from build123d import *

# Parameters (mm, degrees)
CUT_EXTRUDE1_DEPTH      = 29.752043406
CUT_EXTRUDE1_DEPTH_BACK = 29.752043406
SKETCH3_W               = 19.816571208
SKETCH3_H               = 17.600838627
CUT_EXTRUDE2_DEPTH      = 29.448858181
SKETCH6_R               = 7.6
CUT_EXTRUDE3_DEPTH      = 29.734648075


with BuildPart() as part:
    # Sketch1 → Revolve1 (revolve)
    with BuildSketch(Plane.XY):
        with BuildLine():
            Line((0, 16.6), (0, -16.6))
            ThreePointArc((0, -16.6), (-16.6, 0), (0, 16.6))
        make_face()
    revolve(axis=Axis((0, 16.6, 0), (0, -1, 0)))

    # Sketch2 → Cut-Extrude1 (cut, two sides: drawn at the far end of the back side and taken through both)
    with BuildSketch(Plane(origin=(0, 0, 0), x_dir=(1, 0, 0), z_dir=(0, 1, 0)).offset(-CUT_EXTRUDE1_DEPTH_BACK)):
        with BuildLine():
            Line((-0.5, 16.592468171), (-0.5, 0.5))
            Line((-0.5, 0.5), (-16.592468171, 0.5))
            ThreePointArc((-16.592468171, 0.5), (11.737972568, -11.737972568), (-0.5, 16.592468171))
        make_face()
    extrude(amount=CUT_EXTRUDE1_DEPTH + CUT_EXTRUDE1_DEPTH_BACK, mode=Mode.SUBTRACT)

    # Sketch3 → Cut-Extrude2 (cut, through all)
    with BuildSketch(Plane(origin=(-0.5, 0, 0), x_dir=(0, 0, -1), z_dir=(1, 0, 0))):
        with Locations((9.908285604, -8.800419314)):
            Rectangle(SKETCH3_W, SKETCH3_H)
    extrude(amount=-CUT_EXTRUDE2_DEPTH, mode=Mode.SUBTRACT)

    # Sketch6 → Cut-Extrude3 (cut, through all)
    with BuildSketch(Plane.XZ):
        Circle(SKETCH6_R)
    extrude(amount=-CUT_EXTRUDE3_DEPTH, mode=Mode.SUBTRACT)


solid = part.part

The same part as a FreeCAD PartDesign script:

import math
import FreeCAD as App
import Part
import Sketcher

V = App.Vector
Q = App.Units.Quantity


def add_polygon(sketch, points):
    """Adds a closed chain of lines whose ends are joined by coincident constraints."""
    first, n = sketch.GeometryCount, len(points)
    for a, b in zip(points, points[1:] + points[:1]):
        sketch.addGeometry(Part.LineSegment(App.Vector(*a, 0), App.Vector(*b, 0)), False)
    for i in range(n):
        sketch.addConstraint(Sketcher.Constraint("Coincident", first + i, 2, first + (i + 1) % n, 1))

doc = App.newDocument("Part")
body = doc.addObject("PartDesign::Body", "Body")

sketch1 = body.newObject("Sketcher::SketchObject", "Sketch")
sketch1.AttachmentSupport = (doc.getObject("XY_Plane"), [""])
sketch1.MapMode = "FlatFace"
sketch1.addGeometry(Part.LineSegment(V(0, -17, 0), V(0, 17, 0)), False)
sketch1.addGeometry(Part.ArcOfCircle(Part.Circle(V(0, 0, 0), V(0, 0, 1), 17), math.radians(90), math.radians(270)), False)
sketch1.addConstraint(Sketcher.Constraint("Coincident", 0, 1, 1, 2))
sketch1.addConstraint(Sketcher.Constraint("Coincident", 1, 1, 0, 2))
sketch1.addConstraint(Sketcher.Constraint("Vertical", 0))
sketch1.addConstraint(Sketcher.Constraint("Coincident", 1, 3, -1, 1))
sketch1.addConstraint(Sketcher.Constraint("PointOnObject", 0, 1, -2))
sketch1.addConstraint(Sketcher.Constraint("Radius", 1, Q("16.6 mm")))
revolution = body.newObject("PartDesign::Revolution", "Revolution")
revolution.Profile = sketch1
revolution.ReferenceAxis = (sketch1, ["V_Axis"])
revolution.Angle = 360

sketch2 = body.newObject("Sketcher::SketchObject", "Sketch001")
sketch2.AttachmentSupport = (doc.getObject("XZ_Plane"), [""])
sketch2.MapMode = "FlatFace"
sketch2.addGeometry(Part.LineSegment(V(0, -17, 0), V(0, 0, 0)), False)
sketch2.addGeometry(Part.LineSegment(V(0, 0, 0), V(-17, 0, 0)), False)
sketch2.addGeometry(Part.ArcOfCircle(Part.Circle(V(0, 0, 0), V(0, 0, 1), 17), math.radians(-92), math.radians(182)), False)
sketch2.addConstraint(Sketcher.Constraint("Coincident", 0, 2, 1, 1))
sketch2.addConstraint(Sketcher.Constraint("Coincident", 1, 2, 2, 2))
sketch2.addConstraint(Sketcher.Constraint("Coincident", 2, 1, 0, 1))
sketch2.addConstraint(Sketcher.Constraint("Vertical", 0))
sketch2.addConstraint(Sketcher.Constraint("Horizontal", 1))
sketch2.addConstraint(Sketcher.Constraint("Coincident", 2, 3, -1, 1))
sketch2.addConstraint(Sketcher.Constraint("Equal", 1, 0))
sketch2.addConstraint(Sketcher.Constraint("Radius", 2, Q("16.6 mm")))
sketch2.addConstraint(Sketcher.Constraint("DistanceX", 0, 2, -1, 1, Q("0.5 mm")))
pocket1 = body.newObject("PartDesign::Pocket", "Pocket")
pocket1.Profile = sketch2
pocket1.Type = "ThroughAll"
pocket1.Midplane = True

sketch3 = body.newObject("Sketcher::SketchObject", "Sketch002")
sketch3.AttachmentSupport = (doc.getObject("YZ_Plane"), [""])
sketch3.MapMode = "FlatFace"
sketch3.AttachmentOffset = App.Placement(V(0, 0, -0.5), App.Rotation())
add_polygon(sketch3, [(0, 0), (-18, 0), (-18, -20), (0, -20)])
sketch3.addConstraint(Sketcher.Constraint("Horizontal", 0))
sketch3.addConstraint(Sketcher.Constraint("Vertical", 1))
sketch3.addConstraint(Sketcher.Constraint("Horizontal", 2))
sketch3.addConstraint(Sketcher.Constraint("Vertical", 3))
sketch3.addConstraint(Sketcher.Constraint("Coincident", 3, 2, -1, 1))
sketch3.addConstraint(Sketcher.Constraint("DistanceX", 0, 2, 0, 1, Q("17.600839 mm")))
sketch3.addConstraint(Sketcher.Constraint("DistanceY", 1, 2, 1, 1, Q("19.816571 mm")))
pocket2 = body.newObject("PartDesign::Pocket", "Pocket001")
pocket2.Profile = sketch3
pocket2.Type = "ThroughAll"

sketch4 = body.newObject("Sketcher::SketchObject", "Sketch003")
sketch4.AttachmentSupport = (doc.getObject("XZ_Plane"), [""])
sketch4.MapMode = "FlatFace"
sketch4.addGeometry(Part.Circle(V(0, 0, 0), V(0, 0, 1), 8), False)
sketch4.addConstraint(Sketcher.Constraint("Coincident", 0, 3, -1, 1))
sketch4.addConstraint(Sketcher.Constraint("Diameter", 0, Q("15.2 mm")))
pocket3 = body.newObject("PartDesign::Pocket", "Pocket002")
pocket3.Profile = sketch4
pocket3.Type = "ThroughAll"

doc.recompute()
